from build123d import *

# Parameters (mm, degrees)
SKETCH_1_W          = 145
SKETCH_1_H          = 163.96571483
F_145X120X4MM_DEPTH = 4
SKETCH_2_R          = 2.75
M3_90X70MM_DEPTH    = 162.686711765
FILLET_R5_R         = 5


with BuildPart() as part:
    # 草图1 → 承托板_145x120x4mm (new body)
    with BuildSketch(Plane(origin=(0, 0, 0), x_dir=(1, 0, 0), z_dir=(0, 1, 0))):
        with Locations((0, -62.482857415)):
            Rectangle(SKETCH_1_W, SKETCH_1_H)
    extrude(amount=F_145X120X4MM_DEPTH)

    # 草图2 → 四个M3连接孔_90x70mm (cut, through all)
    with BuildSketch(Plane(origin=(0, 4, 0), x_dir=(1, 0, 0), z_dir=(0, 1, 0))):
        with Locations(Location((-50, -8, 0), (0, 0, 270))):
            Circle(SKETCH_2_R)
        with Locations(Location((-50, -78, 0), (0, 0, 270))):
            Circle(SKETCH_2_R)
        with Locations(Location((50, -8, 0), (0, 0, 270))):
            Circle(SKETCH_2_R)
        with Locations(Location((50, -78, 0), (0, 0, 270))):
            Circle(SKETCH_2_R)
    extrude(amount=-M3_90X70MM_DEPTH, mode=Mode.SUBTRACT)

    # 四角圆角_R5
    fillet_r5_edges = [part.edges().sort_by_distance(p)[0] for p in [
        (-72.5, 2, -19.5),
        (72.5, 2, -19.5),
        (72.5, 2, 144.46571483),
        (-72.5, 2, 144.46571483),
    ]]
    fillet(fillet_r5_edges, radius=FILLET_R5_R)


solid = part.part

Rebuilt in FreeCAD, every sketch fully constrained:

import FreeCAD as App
import Part
import Sketcher
Q = App.Units.Quantity


def edges_at(feature, points):
    """Names of the edges that pass closest to the given points."""
    edges = feature.Shape.Edges
    near = lambda p: min(range(len(edges)), key=lambda i: edges[i].distToShape(Part.Vertex(*p))[0])
    return sorted({f"Edge{near(p) + 1}" for p in points})


def add_polygon(sketch, points):
    """Adds a closed chain of lines whose ends are joined by coincident constraints."""
    first, n = sketch.GeometryCount, len(points)
    for a, b in zip(points, points[1:] + points[:1]):
        sketch.addGeometry(Part.LineSegment(App.Vector(*a, 0), App.Vector(*b, 0)), False)
    for i in range(n):
        sketch.addConstraint(Sketcher.Constraint("Coincident", first + i, 2, first + (i + 1) % n, 1))

doc = App.newDocument("Part")
body = doc.addObject("PartDesign::Body", "Body")

# Sketch on XZ plane
sketch1 = doc.addObject("Sketcher::SketchObject", "Sketch")
body.addObject(sketch1)
sketch1.AttachmentSupport = (doc.XZ_Plane, [""])
sketch1.MapMode = "FlatFace"
add_polygon(sketch1, [(-72, -20), (-72, 144), (72, 144), (72, -20)])  # lines 0-3
sketch1.addConstraint(Sketcher.Constraint("Vertical", 0))
sketch1.addConstraint(Sketcher.Constraint("Horizontal", 1))
sketch1.addConstraint(Sketcher.Constraint("Vertical", 2))
sketch1.addConstraint(Sketcher.Constraint("Horizontal", 3))
sketch1.addConstraint(Sketcher.Constraint("DistanceX", 1, 1, 1, 2, Q("145 mm")))
sketch1.addConstraint(Sketcher.Constraint("DistanceX", 0, 2, -1, 1, Q("72.5 mm")))
sketch1.addConstraint(Sketcher.Constraint("DistanceY", 2, 2, -1, 1, Q("19.5 mm")))
sketch1.addConstraint(Sketcher.Constraint("DistanceY", 0, 1, 0, 2, Q("163.965715 mm")))
pad1 = doc.addObject("PartDesign::Pad", "Pad")
body.addObject(pad1)
pad1.Profile = sketch1
pad1.Length = 4
pad1.Reversed = True

# Sketch on XZ plane
sketch2 = doc.addObject("Sketcher::SketchObject", "Sketch001")
body.addObject(sketch2)
sketch2.AttachmentSupport = (doc.XZ_Plane, [""])
sketch2.MapMode = "FlatFace"
sketch2.AttachmentOffset = App.Placement(App.Vector(0, 0, -4), App.Rotation())
sketch2.addGeometry(Part.Circle(App.Vector(-50, 8, 0), App.Vector(0, 0, 1), 2.8), False)
sketch2.addGeometry(Part.Circle(App.Vector(-50, 78, 0), App.Vector(0, 0, 1), 2.8), False)
sketch2.addGeometry(Part.Circle(App.Vector(50, 8, 0), App.Vector(0, 0, 1), 2.8), False)
sketch2.addGeometry(Part.Circle(App.Vector(50, 78, 0), App.Vector(0, 0, 1), 2.8), False)
sketch2.addConstraint(Sketcher.Constraint("Equal", 0, 1))
sketch2.addConstraint(Sketcher.Constraint("Equal", 1, 2))
sketch2.addConstraint(Sketcher.Constraint("Equal", 2, 3))
sketch2.addConstraint(Sketcher.Constraint("Symmetric", 0, 3, 2, 3, -2))
sketch2.addConstraint(Sketcher.Constraint("Symmetric", 1, 3, 3, 3, -2))
sketch2.addConstraint(Sketcher.Constraint("Vertical", 0, 3, 1, 3))
sketch2.addConstraint(Sketcher.Constraint("Diameter", 0, Q("5.5 mm")))
sketch2.addConstraint(Sketcher.Constraint("DistanceX", 0, 3, -1, 1, Q("50 mm")))
sketch2.addConstraint(Sketcher.Constraint("DistanceY", -1, 1, 0, 3, Q("8 mm")))
sketch2.addConstraint(Sketcher.Constraint("DistanceY", -1, 1, 1, 3, Q("78 mm")))
pocket1 = doc.addObject("PartDesign::Pocket", "Pocket")
body.addObject(pocket1)
pocket1.Profile = sketch2
pocket1.Type = "ThroughAll"
pocket1.Reversed = True
doc.recompute()

fillet = doc.addObject("PartDesign::Fillet", "Fillet")
body.addObject(fillet)
fillet.Base = (pocket1, edges_at(pocket1, [
    (-72.5, 2, -19.5),
    (72.5, 2, -19.5),
    (72.5, 2, 144.466),
    (-72.5, 2, 144.466),
]))
fillet.Radius = 5

doc.recompute()
